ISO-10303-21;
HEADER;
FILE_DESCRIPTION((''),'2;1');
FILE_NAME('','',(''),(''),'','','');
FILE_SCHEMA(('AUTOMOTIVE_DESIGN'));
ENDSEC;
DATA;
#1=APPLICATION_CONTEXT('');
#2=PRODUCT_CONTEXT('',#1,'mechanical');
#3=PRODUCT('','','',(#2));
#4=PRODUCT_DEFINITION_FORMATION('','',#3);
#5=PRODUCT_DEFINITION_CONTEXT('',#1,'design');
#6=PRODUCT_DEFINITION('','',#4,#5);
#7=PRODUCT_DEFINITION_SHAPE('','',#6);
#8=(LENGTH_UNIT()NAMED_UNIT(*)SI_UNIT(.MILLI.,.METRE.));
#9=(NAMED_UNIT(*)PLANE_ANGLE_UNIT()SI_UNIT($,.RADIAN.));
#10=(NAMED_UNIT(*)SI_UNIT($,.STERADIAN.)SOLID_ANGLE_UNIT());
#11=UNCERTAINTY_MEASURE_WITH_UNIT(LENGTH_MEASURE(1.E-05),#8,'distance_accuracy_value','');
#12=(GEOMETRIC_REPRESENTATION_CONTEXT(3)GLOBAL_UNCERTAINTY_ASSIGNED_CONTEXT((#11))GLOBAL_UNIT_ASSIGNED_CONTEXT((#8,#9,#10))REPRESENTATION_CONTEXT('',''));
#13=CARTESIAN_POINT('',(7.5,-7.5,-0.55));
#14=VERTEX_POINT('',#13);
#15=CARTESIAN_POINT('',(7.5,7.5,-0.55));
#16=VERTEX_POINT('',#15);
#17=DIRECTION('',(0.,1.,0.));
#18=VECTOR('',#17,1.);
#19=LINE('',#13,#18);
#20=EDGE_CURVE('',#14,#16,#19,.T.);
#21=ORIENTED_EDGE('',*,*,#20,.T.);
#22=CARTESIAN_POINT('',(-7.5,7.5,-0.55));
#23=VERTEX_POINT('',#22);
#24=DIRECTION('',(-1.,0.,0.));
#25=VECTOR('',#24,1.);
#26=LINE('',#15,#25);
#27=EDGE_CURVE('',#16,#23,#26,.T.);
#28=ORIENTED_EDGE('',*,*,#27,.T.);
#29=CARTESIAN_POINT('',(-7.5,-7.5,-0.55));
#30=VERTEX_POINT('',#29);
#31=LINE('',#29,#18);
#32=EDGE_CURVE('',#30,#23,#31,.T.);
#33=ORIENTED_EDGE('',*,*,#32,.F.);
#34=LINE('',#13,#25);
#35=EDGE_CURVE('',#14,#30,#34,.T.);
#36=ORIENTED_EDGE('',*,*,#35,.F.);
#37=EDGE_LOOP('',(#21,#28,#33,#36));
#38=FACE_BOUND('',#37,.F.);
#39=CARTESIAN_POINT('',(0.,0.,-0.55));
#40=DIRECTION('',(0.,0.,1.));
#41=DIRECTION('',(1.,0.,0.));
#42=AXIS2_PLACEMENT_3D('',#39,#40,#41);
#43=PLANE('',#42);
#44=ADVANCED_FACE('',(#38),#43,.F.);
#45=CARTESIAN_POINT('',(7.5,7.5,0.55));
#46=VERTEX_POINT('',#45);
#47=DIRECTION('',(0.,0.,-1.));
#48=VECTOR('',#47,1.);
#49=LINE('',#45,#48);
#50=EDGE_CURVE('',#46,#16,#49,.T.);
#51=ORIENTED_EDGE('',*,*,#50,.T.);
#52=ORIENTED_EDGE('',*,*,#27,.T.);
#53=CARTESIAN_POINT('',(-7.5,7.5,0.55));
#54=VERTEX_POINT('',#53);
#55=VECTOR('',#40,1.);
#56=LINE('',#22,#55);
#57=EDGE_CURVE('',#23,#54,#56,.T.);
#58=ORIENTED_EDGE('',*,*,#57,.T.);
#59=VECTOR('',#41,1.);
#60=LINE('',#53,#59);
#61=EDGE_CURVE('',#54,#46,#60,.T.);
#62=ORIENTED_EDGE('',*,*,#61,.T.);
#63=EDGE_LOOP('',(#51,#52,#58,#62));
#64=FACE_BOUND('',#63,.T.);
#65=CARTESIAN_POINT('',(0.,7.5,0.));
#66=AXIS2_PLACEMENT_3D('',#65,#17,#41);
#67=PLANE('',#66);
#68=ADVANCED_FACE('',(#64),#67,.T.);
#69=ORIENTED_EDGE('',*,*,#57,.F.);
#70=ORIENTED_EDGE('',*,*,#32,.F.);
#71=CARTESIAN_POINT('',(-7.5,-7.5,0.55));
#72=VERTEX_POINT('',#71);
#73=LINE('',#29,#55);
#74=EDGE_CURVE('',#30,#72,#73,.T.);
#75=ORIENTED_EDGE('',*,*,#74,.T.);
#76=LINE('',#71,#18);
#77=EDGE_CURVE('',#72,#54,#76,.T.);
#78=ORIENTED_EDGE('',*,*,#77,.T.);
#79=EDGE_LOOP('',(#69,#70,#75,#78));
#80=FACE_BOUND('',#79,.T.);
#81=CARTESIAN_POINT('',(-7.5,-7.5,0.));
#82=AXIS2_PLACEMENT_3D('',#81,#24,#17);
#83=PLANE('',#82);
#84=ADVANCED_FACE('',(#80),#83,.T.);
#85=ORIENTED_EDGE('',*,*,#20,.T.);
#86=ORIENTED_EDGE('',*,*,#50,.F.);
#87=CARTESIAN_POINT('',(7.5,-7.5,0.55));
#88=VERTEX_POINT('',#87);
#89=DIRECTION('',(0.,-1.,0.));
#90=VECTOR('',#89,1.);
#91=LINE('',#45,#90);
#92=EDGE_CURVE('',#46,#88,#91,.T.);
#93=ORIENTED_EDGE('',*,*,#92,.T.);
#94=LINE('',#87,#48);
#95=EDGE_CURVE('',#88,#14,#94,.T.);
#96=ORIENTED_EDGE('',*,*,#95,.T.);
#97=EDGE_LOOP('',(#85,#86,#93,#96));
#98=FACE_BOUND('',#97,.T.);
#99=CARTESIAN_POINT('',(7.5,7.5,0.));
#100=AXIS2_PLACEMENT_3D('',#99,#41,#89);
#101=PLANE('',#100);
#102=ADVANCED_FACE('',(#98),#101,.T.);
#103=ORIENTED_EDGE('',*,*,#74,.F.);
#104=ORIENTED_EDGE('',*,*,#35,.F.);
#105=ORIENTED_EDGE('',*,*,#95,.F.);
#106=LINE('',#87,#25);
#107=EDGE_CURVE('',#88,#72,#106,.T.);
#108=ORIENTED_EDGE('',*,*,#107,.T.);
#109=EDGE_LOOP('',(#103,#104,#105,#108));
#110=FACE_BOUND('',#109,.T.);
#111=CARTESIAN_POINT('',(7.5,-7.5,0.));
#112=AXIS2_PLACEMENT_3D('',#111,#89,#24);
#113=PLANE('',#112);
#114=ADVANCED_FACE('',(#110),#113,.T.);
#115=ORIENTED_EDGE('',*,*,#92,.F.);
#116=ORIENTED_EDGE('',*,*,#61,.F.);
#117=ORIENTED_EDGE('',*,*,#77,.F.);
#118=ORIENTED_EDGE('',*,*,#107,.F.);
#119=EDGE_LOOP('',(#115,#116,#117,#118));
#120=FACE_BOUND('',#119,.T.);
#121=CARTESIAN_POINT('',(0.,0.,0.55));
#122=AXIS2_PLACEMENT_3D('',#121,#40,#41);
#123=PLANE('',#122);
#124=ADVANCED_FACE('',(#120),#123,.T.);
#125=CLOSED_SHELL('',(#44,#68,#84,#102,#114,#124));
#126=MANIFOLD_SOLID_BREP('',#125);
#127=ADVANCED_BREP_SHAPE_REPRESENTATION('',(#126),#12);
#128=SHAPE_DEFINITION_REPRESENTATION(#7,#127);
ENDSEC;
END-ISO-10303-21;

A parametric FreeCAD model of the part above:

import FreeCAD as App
import Part
import Sketcher
Q = App.Units.Quantity

doc = App.newDocument("Part")
body = doc.addObject("PartDesign::Body", "Body")

sketch1 = doc.addObject("Sketcher::SketchObject", "Sketch")
body.addObject(sketch1)
sketch1.AttachmentSupport = (doc.XY_Plane, [""])
sketch1.MapMode = "FlatFace"
sketch1.addGeometry([
    Part.LineSegment(App.Vector(8, 8, 0), App.Vector(-8, 8, 0)),
    Part.LineSegment(App.Vector(-8, 8, 0), App.Vector(-8, -8, 0)),
    Part.LineSegment(App.Vector(-8, -8, 0), App.Vector(8, -8, 0)),
    Part.LineSegment(App.Vector(8, -8, 0), App.Vector(8, 8, 0)),
], False)
sketch1.addConstraint([
    Sketcher.Constraint("Coincident", 0, 2, 1, 1),
    Sketcher.Constraint("Coincident", 1, 2, 2, 1),
    Sketcher.Constraint("Coincident", 2, 2, 3, 1),
    Sketcher.Constraint("Coincident", 3, 2, 0, 1),
    Sketcher.Constraint("Horizontal", 0),
    Sketcher.Constraint("Vertical", 1),
    Sketcher.Constraint("Horizontal", 2),
    Sketcher.Constraint("Vertical", 3),
    Sketcher.Constraint("Symmetric", 0, 2, 2, 2, -1, 1),
    Sketcher.Constraint("Equal", 2, 1),
    Sketcher.Constraint("DistanceX", 0, 2, 0, 1, Q("15 mm")),
])
pad1 = doc.addObject("PartDesign::Pad", "Pad")
body.addObject(pad1)
pad1.Profile = sketch1
pad1.Length = 1.1
pad1.Midplane = True

doc.recompute()
